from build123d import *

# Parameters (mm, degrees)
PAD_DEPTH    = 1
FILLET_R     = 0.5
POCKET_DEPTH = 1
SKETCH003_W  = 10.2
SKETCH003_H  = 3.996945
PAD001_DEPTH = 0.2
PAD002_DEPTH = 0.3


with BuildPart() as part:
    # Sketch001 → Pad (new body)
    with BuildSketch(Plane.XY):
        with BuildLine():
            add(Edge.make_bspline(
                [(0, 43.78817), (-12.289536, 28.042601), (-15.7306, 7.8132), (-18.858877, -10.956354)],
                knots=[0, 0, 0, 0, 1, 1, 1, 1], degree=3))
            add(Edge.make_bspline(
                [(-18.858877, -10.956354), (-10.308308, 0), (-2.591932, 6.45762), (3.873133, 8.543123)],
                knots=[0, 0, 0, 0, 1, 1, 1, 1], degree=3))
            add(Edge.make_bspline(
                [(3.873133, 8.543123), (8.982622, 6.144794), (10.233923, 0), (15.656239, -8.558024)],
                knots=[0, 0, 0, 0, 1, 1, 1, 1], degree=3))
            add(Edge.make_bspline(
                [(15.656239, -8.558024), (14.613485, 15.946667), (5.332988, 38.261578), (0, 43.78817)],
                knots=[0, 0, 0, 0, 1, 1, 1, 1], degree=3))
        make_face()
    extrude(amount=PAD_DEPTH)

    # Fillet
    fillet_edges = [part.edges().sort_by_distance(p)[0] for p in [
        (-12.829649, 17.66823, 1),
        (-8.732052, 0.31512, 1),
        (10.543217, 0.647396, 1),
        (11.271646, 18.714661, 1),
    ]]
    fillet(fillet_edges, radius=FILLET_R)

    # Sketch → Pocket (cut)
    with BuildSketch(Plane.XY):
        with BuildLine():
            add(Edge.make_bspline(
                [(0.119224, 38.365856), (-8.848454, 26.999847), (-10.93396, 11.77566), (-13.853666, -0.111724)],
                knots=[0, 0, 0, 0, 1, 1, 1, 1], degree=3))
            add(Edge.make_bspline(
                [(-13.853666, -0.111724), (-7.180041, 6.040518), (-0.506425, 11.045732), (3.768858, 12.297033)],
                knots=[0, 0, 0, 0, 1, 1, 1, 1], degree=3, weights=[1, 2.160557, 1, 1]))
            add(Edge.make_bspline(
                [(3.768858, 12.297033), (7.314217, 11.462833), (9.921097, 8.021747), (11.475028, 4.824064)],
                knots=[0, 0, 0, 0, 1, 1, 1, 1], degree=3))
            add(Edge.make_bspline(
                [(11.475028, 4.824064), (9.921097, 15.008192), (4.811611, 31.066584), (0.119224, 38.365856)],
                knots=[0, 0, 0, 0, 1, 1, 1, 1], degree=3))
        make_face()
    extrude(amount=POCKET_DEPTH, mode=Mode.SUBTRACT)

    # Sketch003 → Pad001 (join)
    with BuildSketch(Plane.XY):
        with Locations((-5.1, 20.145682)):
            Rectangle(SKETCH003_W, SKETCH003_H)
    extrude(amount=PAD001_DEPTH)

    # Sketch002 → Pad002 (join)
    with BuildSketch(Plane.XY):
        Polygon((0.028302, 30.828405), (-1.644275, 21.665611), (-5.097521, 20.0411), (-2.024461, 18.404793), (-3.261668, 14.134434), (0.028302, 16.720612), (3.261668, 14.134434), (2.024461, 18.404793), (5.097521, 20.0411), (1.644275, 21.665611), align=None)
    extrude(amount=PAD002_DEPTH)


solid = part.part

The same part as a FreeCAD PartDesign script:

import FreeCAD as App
import Part
import Sketcher
from FreeCAD import Vector
Q = App.Units.Quantity


def edges_at(feature, points):
    """Names of the edges that pass closest to the given points."""
    edges = feature.Shape.Edges
    near = lambda p: min(range(len(edges)), key=lambda i: edges[i].distToShape(Part.Vertex(*p))[0])
    return sorted({f"Edge{near(p) + 1}" for p in points})


def add_polygon(sketch, points):
    """Adds a closed chain of lines whose ends are joined by coincident constraints."""
    first, n = sketch.GeometryCount, len(points)
    for a, b in zip(points, points[1:] + points[:1]):
        sketch.addGeometry(Part.LineSegment(App.Vector(*a, 0), App.Vector(*b, 0)), False)
    for i in range(n):
        sketch.addConstraint(Sketcher.Constraint("Coincident", first + i, 2, first + (i + 1) % n, 1))

doc = App.newDocument("Part")
body = doc.addObject("PartDesign::Body", "Body")

# Sketch on XY plane
sketch1 = doc.addObject("Sketcher::SketchObject", "Sketch")
body.addObject(sketch1)
sketch1.AttachmentSupport = (doc.XY_Plane, [""])
sketch1.MapMode = "FlatFace"
sketch1.addGeometry(Part.BSplineCurve([Vector(0, 43.78817, 0), Vector(-12.289536, 28.042601, 0), Vector(-15.7306, 7.8132, 0), Vector(-18.858877, -10.956354, 0)], [4, 4], [0, 1], False, 3, [1, 1, 1, 1], False), False)
sketch1.addGeometry(Part.BSplineCurve([Vector(-18.858877, -10.956354, 0), Vector(-10.308308, 0, 0), Vector(-2.591932, 6.45762, 0), Vector(3.873133, 8.543123, 0)], [4, 4], [0, 1], False, 3, [1, 1, 1, 1], False), False)
sketch1.addGeometry(Part.BSplineCurve([Vector(3.873133, 8.543123, 0), Vector(8.982622, 6.144794, 0), Vector(10.233923, 0, 0), Vector(15.656239, -8.558024, 0)], [4, 4], [0, 1], False, 3, [1, 1, 1, 1], False), False)
sketch1.addGeometry(Part.BSplineCurve([Vector(15.656239, -8.558024, 0), Vector(14.613485, 15.946667, 0), Vector(5.332988, 38.261578, 0), Vector(0, 43.78817, 0)], [4, 4], [0, 1], False, 3, [1, 1, 1, 1], False), False)
sketch1.addConstraint(Sketcher.Constraint("Block", 0))
sketch1.addConstraint(Sketcher.Constraint("Block", 1))
sketch1.addConstraint(Sketcher.Constraint("Block", 2))
sketch1.addConstraint(Sketcher.Constraint("Block", 3))
pad1 = doc.addObject("PartDesign::Pad", "Pad")
body.addObject(pad1)
pad1.Profile = sketch1
pad1.Length = 1
doc.recompute()

fillet = doc.addObject("PartDesign::Fillet", "Fillet")
body.addObject(fillet)
fillet.Base = (pad1, edges_at(pad1, [
    (-12.83, 17.668, 1),
    (-8.732, 0.315, 1),
    (10.543, 0.647, 1),
    (11.272, 18.715, 1),
]))
fillet.Radius = 0.5

# Sketch on XY plane
sketch2 = doc.addObject("Sketcher::SketchObject", "Sketch001")
body.addObject(sketch2)
sketch2.AttachmentSupport = (doc.XY_Plane, [""])
sketch2.MapMode = "FlatFace"
sketch2.addGeometry(Part.BSplineCurve([Vector(0.119224, 38.365856, 0), Vector(-8.848454, 26.999847, 0), Vector(-10.93396, 11.77566, 0), Vector(-13.853666, -0.111724, 0)], [4, 4], [0, 1], False, 3, [1, 1, 1, 1], False), False)
sketch2.addGeometry(Part.BSplineCurve([Vector(-13.853666, -0.111724, 0), Vector(-7.180041, 6.040518, 0), Vector(-0.506425, 11.045732, 0), Vector(3.768858, 12.297033, 0)], [4, 4], [0, 1], False, 3, [1, 2.160557, 1, 1], False), False)
sketch2.addGeometry(Part.BSplineCurve([Vector(3.768858, 12.297033, 0), Vector(7.314217, 11.462833, 0), Vector(9.921097, 8.021747, 0), Vector(11.475028, 4.824064, 0)], [4, 4], [0, 1], False, 3, [1, 1, 1, 1], False), False)
sketch2.addGeometry(Part.BSplineCurve([Vector(11.475028, 4.824064, 0), Vector(9.921097, 15.008192, 0), Vector(4.811611, 31.066584, 0), Vector(0.119224, 38.365856, 0)], [4, 4], [0, 1], False, 3, [1, 1, 1, 1], False), False)
sketch2.addConstraint(Sketcher.Constraint("Block", 0))
sketch2.addConstraint(Sketcher.Constraint("Block", 1))
sketch2.addConstraint(Sketcher.Constraint("Block", 2))
sketch2.addConstraint(Sketcher.Constraint("Block", 3))
pocket1 = doc.addObject("PartDesign::Pocket", "Pocket")
body.addObject(pocket1)
pocket1.Profile = sketch2
pocket1.Length = 1
pocket1.Reversed = True

# Sketch on XY plane
sketch3 = doc.addObject("Sketcher::SketchObject", "Sketch002")
body.addObject(sketch3)
sketch3.AttachmentSupport = (doc.XY_Plane, [""])
sketch3.MapMode = "FlatFace"
add_polygon(sketch3, [(-10.2, 22.1), (-10.2, 18.1), (0, 18.1), (0, 22.1)])  # lines 0-3
sketch3.addConstraint(Sketcher.Constraint("Vertical", 0))
sketch3.addConstraint(Sketcher.Constraint("Horizontal", 1))
sketch3.addConstraint(Sketcher.Constraint("Vertical", 2))
sketch3.addConstraint(Sketcher.Constraint("Horizontal", 3))
sketch3.addConstraint(Sketcher.Constraint("PointOnObject", 1, 2, -2))
sketch3.addConstraint(Sketcher.Constraint("DistanceX", 1, 1, 1, 2, Q("10.2 mm")))
sketch3.addConstraint(Sketcher.Constraint("DistanceY", 0, 2, 0, 1, Q("3.996945 mm")))
sketch3.addConstraint(Sketcher.Constraint("DistanceY", -1, 1, 0, 2, Q("18.147209 mm")))
pad2 = doc.addObject("PartDesign::Pad", "Pad001")
body.addObject(pad2)
pad2.Profile = sketch3
pad2.Length = 0.2

# Sketch on XY plane
sketch4 = doc.addObject("Sketcher::SketchObject", "Sketch003")
body.addObject(sketch4)
sketch4.AttachmentSupport = (doc.XY_Plane, [""])
sketch4.MapMode = "FlatFace"
add_polygon(sketch4, [(0.028302, 30.828405), (-1.644275, 21.665611), (-5.097521, 20.0411), (-2.024461, 18.404793), (-3.261668, 14.134434), (0.028302, 16.720612), (3.261668, 14.134434), (2.024461, 18.404793), (5.097521, 20.0411), (1.644275, 21.665611)])  # lines 0-9
sketch4.addConstraint(Sketcher.Constraint("DistanceY", 4, 2, 0, 2, Q("4.944999 mm")))
sketch4.addConstraint(Sketcher.Constraint("DistanceY", 4, 2, 8, 2, Q("4.944999 mm")))
sketch4.addConstraint(Sketcher.Constraint("Distance", 0, Q("9.314199 mm")))
sketch4.addConstraint(Sketcher.Constraint("Distance", 9, Q("9.304201 mm")))
sketch4.addConstraint(Sketcher.Constraint("DistanceY", -1, 1, 1, 2, Q("20.0411 mm")))
sketch4.addConstraint(Sketcher.Constraint("DistanceY", -1, 1, 7, 2, Q("20.0411 mm")))
sketch4.addConstraint(Sketcher.Constraint("Distance", 2, Q("3.481551 mm")))
sketch4.addConstraint(Sketcher.Constraint("Distance", 3, Q("4.44597 mm")))
sketch4.addConstraint(Sketcher.Constraint("Distance", 4, Q("4.18476 mm")))
sketch4.addConstraint(Sketcher.Constraint("Distance", 6, Q("4.44597 mm")))
sketch4.addConstraint(Sketcher.Constraint("Distance", 7, Q("3.481551 mm")))
sketch4.addConstraint(Sketcher.Constraint("DistanceY", -1, 1, 0, 2, Q("21.665611 mm")))
sketch4.addConstraint(Sketcher.Constraint("DistanceX", 1, 2, -1, 1, Q("5.097521 mm")))
sketch4.addConstraint(Sketcher.Constraint("DistanceX", 2, 2, -1, 1, Q("2.024461 mm")))
sketch4.addConstraint(Sketcher.Constraint("DistanceX", -1, 1, 6, 2, Q("2.024461 mm")))
sketch4.addConstraint(Sketcher.Constraint("DistanceX", -1, 1, 7, 2, Q("5.097521 mm")))
sketch4.addConstraint(Sketcher.Constraint("DistanceY", 3, 2, 2, 2, Q("4.270359 mm")))
sketch4.addConstraint(Sketcher.Constraint("DistanceX", 2, 2, 5, 2, Q("5.286129 mm")))
sketch4.addConstraint(Sketcher.Constraint("DistanceX", 0, 2, 8, 2, Q("3.28855 mm")))
sketch4.addConstraint(Sketcher.Constraint("DistanceX", 9, 2, 7, 2, Q("5.069219 mm")))
pad3 = doc.addObject("PartDesign::Pad", "Pad002")
body.addObject(pad3)
pad3.Profile = sketch4
pad3.Length = 0.3

doc.recompute()
